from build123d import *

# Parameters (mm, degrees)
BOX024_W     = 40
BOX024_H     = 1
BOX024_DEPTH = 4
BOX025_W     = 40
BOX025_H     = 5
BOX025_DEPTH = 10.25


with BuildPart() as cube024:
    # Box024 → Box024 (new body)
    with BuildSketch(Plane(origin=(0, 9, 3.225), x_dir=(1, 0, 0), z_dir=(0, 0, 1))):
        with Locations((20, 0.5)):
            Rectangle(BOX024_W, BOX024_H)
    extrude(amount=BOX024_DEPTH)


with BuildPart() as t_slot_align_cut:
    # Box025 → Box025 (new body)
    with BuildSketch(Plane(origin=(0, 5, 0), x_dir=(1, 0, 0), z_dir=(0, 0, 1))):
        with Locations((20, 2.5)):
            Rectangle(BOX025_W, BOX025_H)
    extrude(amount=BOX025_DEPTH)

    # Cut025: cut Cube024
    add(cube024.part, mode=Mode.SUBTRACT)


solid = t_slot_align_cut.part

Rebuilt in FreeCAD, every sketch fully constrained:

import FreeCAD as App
import Part
import Sketcher

V = App.Vector

doc = App.newDocument("Part")
body = doc.addObject("PartDesign::Body", "Body")

# Sketch on XY plane
sketch1 = body.newObject("Sketcher::SketchObject", "Sketch")
sketch1.AttachmentSupport = (doc.getObject("XY_Plane"), [""])
sketch1.MapMode = "FlatFace"
sketch1.AttachmentOffset = App.Placement(V(0, 0, 3.225), App.Rotation())
sketch1.addGeometry([
    Part.LineSegment(V(0, 10, 0), V(0, 9, 0)),
    Part.LineSegment(V(0, 9, 0), V(40, 9, 0)),
    Part.LineSegment(V(40, 9, 0), V(40, 10, 0)),
    Part.LineSegment(V(40, 10, 0), V(0, 10, 0)),
], False)
sketch1.addConstraint([
    Sketcher.Constraint("Coincident", 0, 2, 1, 1),
    Sketcher.Constraint("Coincident", 1, 2, 2, 1),
    Sketcher.Constraint("Coincident", 2, 2, 3, 1),
    Sketcher.Constraint("Coincident", 3, 2, 0, 1),
    Sketcher.Constraint("Vertical", 0),
    Sketcher.Constraint("Horizontal", 1),
    Sketcher.Constraint("Vertical", 2),
    Sketcher.Constraint("Horizontal", 3),
    Sketcher.Constraint("PointOnObject", 0, 2, -2),
    Sketcher.Constraint("DistanceX", 1, 1, 1, 2, 40.0),
    Sketcher.Constraint("DistanceY", 0, 2, 0, 1, 1.0),
    Sketcher.Constraint("DistanceY", -1, 1, 0, 2, 9.0),
])
pad1 = body.newObject("PartDesign::Pad", "Pad")
pad1.Profile = sketch1
pad1.Length = 4
body2 = doc.addObject("PartDesign::Body", "Body001")

# Sketch on XY plane
sketch2 = body2.newObject("Sketcher::SketchObject", "Sketch001")
sketch2.AttachmentSupport = (doc.getObject("XY_Plane001"), [""])
sketch2.MapMode = "FlatFace"
sketch2.addGeometry([
    Part.LineSegment(V(0, 10, 0), V(0, 5, 0)),
    Part.LineSegment(V(0, 5, 0), V(40, 5, 0)),
    Part.LineSegment(V(40, 5, 0), V(40, 10, 0)),
    Part.LineSegment(V(40, 10, 0), V(0, 10, 0)),
], False)
sketch2.addConstraint([
    Sketcher.Constraint("Coincident", 0, 2, 1, 1),
    Sketcher.Constraint("Coincident", 1, 2, 2, 1),
    Sketcher.Constraint("Coincident", 2, 2, 3, 1),
    Sketcher.Constraint("Coincident", 3, 2, 0, 1),
    Sketcher.Constraint("Vertical", 0),
    Sketcher.Constraint("Horizontal", 1),
    Sketcher.Constraint("Vertical", 2),
    Sketcher.Constraint("Horizontal", 3),
    Sketcher.Constraint("PointOnObject", 0, 2, -2),
    Sketcher.Constraint("DistanceX", 1, 1, 1, 2, 40.0),
    Sketcher.Constraint("DistanceY", 0, 2, 0, 1, 5.0),
    Sketcher.Constraint("DistanceY", -1, 1, 0, 2, 5.0),
])
pad2 = body2.newObject("PartDesign::Pad", "Pad001")
pad2.Profile = sketch2
pad2.Length = 10.25
doc.recompute()

boolean = body2.newObject("PartDesign::Boolean", "Boolean")
boolean.Type = "Cut"
boolean.addObjects([body])

doc.recompute()
